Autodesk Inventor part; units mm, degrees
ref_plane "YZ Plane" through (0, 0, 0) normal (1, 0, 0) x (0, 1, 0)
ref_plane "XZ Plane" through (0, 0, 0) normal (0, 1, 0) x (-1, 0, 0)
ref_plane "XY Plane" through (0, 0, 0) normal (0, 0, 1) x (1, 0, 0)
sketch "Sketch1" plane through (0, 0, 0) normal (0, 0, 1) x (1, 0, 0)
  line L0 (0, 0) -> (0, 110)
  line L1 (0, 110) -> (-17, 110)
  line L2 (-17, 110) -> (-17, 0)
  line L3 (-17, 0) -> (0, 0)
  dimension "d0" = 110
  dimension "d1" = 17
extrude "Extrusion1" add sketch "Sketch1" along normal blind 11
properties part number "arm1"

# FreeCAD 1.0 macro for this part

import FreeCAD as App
import Part
import Sketcher

V = App.Vector

doc = App.newDocument("Part")
body = doc.addObject("PartDesign::Body", "Body")

# Sketch on XY plane
sketch1 = body.newObject("Sketcher::SketchObject", "Sketch")
sketch1.AttachmentSupport = (doc.getObject("XY_Plane"), [""])
sketch1.MapMode = "FlatFace"
sketch1.addGeometry(Part.LineSegment(V(-17, 0, 0), V(0, 0, 0)), False)
sketch1.addGeometry(Part.LineSegment(V(0, 0, 0), V(0, 110, 0)), False)
sketch1.addGeometry(Part.LineSegment(V(0, 110, 0), V(-17, 110, 0)), False)
sketch1.addGeometry(Part.LineSegment(V(-17, 110, 0), V(-17, 0, 0)), False)
sketch1.addConstraint(Sketcher.Constraint("Coincident", 0, 2, 1, 1))
sketch1.addConstraint(Sketcher.Constraint("Coincident", 1, 2, 2, 1))
sketch1.addConstraint(Sketcher.Constraint("Coincident", 2, 2, 3, 1))
sketch1.addConstraint(Sketcher.Constraint("Coincident", 3, 2, 0, 1))
sketch1.addConstraint(Sketcher.Constraint("Horizontal", 0))
sketch1.addConstraint(Sketcher.Constraint("Vertical", 1))
sketch1.addConstraint(Sketcher.Constraint("Horizontal", 2))
sketch1.addConstraint(Sketcher.Constraint("Vertical", 3))
sketch1.addConstraint(Sketcher.Constraint("Coincident", 0, 2, -1, 1))
sketch1.addConstraint(Sketcher.Constraint("DistanceX", 0, 1, 0, 2, 17.0))
sketch1.addConstraint(Sketcher.Constraint("DistanceY", 1, 1, 1, 2, 110.0))
pad1 = body.newObject("PartDesign::Pad", "Pad")
pad1.Profile = sketch1
pad1.Length = 11

doc.recompute()
